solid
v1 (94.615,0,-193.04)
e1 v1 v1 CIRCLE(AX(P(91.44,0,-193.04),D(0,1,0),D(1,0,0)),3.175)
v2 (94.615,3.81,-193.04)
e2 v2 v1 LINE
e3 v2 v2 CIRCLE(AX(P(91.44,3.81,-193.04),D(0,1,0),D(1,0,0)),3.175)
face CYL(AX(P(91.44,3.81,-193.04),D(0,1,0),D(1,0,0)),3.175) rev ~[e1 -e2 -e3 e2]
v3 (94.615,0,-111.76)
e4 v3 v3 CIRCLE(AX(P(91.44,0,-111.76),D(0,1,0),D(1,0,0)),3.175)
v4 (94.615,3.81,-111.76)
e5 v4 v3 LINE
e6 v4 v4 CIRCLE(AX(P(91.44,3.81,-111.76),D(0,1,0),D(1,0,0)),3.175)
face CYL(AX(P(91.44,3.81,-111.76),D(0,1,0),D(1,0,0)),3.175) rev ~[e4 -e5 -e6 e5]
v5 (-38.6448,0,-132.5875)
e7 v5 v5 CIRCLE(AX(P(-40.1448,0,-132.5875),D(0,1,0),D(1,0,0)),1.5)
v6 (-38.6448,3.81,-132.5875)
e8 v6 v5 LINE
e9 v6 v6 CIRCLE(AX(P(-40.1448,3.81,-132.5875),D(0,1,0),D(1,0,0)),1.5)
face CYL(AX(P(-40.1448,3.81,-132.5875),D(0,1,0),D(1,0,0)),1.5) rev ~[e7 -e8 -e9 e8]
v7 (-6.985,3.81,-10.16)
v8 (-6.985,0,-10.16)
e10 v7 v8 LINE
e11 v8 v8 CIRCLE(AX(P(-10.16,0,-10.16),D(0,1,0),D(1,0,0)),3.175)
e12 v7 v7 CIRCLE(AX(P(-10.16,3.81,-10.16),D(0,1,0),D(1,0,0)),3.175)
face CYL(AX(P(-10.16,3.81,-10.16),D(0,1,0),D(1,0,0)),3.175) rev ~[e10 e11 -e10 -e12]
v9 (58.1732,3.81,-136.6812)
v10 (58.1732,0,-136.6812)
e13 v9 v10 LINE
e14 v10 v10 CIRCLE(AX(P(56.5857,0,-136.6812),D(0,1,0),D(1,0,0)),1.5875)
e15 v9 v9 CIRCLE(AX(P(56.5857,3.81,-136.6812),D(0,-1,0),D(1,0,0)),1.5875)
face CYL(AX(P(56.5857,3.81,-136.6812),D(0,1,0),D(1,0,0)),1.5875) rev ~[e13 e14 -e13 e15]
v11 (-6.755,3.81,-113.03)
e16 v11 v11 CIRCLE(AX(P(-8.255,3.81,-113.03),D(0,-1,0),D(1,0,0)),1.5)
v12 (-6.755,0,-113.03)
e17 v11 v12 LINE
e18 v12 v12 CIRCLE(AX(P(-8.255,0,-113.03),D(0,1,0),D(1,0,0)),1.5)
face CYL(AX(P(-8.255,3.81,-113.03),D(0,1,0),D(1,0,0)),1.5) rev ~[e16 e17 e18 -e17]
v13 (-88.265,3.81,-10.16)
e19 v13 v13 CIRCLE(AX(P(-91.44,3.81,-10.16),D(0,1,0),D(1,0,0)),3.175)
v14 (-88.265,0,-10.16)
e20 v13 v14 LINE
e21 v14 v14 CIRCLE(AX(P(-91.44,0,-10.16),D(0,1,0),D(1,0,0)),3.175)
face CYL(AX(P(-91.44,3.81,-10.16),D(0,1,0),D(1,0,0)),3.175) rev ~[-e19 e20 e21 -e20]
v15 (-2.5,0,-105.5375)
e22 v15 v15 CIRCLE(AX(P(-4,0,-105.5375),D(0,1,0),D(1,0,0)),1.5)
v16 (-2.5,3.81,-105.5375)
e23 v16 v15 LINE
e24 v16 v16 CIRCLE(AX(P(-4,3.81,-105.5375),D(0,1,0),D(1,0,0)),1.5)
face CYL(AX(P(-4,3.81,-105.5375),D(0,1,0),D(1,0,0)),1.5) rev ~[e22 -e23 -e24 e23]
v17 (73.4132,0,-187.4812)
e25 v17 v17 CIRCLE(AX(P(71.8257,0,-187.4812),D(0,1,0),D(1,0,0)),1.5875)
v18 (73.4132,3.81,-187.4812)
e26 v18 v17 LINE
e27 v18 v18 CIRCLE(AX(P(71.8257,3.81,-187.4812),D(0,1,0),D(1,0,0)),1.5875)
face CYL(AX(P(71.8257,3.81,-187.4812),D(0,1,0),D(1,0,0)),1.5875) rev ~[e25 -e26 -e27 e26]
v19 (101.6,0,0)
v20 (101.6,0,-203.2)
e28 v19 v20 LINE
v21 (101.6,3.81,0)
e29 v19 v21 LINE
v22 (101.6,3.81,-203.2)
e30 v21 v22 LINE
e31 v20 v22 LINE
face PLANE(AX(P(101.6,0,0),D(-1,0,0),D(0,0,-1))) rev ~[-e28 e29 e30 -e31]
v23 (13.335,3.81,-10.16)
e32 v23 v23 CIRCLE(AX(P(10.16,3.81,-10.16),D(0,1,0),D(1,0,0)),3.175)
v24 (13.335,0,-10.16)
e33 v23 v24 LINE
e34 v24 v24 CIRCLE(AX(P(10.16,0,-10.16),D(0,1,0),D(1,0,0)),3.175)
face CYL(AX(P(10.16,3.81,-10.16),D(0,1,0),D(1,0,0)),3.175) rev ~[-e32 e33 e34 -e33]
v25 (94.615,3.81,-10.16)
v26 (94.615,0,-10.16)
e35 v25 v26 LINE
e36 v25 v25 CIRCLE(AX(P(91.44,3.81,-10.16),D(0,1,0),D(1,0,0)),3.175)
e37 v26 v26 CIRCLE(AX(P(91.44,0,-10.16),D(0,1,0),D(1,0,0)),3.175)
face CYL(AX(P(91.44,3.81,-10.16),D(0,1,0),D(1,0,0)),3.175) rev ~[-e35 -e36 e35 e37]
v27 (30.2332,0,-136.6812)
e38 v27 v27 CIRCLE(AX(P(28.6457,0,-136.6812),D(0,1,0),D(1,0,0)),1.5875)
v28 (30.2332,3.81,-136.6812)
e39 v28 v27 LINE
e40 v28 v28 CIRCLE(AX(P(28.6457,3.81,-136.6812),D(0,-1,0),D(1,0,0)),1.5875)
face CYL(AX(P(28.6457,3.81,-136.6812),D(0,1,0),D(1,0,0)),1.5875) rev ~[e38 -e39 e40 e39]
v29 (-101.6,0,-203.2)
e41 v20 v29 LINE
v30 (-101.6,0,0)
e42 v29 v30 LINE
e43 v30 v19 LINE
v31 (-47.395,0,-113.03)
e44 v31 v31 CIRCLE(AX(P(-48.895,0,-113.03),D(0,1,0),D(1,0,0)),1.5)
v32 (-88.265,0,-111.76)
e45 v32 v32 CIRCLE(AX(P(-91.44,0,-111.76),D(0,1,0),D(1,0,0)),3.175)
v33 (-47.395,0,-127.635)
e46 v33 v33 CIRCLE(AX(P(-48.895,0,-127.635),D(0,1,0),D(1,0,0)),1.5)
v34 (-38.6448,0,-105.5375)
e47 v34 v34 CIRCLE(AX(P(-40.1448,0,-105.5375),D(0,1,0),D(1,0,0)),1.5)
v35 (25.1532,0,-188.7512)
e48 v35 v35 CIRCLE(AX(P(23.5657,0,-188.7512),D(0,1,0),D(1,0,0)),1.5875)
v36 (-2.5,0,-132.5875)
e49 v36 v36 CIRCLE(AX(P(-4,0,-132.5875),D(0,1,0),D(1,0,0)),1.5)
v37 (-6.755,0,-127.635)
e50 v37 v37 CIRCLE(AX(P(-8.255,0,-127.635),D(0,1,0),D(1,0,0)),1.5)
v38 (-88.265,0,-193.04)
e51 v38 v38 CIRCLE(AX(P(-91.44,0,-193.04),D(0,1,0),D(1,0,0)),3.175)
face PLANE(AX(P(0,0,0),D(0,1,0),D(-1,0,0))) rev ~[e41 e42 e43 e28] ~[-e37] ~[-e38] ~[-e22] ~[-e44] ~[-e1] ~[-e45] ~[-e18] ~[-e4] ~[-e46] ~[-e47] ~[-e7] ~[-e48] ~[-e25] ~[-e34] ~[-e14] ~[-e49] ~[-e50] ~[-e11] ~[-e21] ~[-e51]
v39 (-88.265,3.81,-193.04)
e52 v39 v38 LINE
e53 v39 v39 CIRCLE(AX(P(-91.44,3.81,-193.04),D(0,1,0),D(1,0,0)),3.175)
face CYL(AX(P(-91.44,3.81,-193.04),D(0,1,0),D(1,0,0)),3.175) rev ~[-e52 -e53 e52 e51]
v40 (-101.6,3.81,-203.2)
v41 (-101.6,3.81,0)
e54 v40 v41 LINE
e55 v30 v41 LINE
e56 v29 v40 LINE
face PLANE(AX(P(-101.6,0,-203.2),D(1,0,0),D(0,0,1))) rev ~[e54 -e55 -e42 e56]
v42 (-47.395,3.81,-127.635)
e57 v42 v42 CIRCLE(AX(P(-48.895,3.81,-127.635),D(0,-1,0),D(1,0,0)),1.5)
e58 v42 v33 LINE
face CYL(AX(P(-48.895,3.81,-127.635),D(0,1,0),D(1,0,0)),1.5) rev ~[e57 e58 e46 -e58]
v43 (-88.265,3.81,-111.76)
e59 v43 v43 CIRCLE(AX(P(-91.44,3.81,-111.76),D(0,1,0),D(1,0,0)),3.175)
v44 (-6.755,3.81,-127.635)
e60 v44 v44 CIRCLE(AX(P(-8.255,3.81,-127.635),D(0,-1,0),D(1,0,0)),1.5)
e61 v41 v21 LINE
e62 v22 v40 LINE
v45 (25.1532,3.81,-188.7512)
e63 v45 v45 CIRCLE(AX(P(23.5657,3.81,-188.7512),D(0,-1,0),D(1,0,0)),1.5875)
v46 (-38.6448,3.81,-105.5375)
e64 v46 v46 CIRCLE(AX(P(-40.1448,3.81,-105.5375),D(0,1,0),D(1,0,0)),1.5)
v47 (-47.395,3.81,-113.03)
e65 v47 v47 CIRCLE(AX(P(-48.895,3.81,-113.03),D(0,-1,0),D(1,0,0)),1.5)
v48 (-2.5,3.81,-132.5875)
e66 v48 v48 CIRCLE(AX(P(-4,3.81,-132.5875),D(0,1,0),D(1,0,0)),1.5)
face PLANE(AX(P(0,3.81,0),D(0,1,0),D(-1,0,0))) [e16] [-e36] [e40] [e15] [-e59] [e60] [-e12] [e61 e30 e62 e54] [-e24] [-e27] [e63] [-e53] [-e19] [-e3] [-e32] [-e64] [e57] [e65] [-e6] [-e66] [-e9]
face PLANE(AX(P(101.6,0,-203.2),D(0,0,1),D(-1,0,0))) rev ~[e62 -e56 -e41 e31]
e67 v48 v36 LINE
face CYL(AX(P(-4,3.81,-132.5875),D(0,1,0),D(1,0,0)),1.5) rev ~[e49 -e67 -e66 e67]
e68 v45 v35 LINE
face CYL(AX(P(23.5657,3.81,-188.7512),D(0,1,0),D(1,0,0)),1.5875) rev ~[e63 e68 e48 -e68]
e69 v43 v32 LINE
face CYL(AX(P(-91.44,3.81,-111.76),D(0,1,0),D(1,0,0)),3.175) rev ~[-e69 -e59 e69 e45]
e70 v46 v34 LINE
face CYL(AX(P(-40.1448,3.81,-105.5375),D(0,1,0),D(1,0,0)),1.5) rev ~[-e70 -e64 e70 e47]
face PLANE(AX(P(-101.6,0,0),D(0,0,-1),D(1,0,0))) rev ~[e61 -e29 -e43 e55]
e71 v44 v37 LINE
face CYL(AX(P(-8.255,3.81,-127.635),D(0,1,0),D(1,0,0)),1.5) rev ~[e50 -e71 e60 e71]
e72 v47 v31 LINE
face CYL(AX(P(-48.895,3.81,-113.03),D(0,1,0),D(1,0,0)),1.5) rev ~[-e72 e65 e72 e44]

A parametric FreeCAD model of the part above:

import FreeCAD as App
import Part
import Sketcher
Q = App.Units.Quantity


def add_polygon(sketch, points):
    """Adds a closed chain of lines whose ends are joined by coincident constraints."""
    first, n = sketch.GeometryCount, len(points)
    for a, b in zip(points, points[1:] + points[:1]):
        sketch.addGeometry(Part.LineSegment(App.Vector(*a, 0), App.Vector(*b, 0)), False)
    for i in range(n):
        sketch.addConstraint(Sketcher.Constraint("Coincident", first + i, 2, first + (i + 1) % n, 1))

doc = App.newDocument("Part")
body = doc.addObject("PartDesign::Body", "Body")

sketch1 = body.newObject("Sketcher::SketchObject", "Sketch")
sketch1.AttachmentSupport = (doc.getObject("XZ_Plane"), [""])
sketch1.MapMode = "FlatFace"
add_polygon(sketch1, [(-102, -203), (-102, 0), (102, 0), (102, -203)])
sketch1.addConstraint([
    Sketcher.Constraint("Vertical", 0),
    Sketcher.Constraint("Horizontal", 1),
    Sketcher.Constraint("Vertical", 2),
    Sketcher.Constraint("Horizontal", 3),
    Sketcher.Constraint("Symmetric", 0, 2, 1, 2, -1, 1),
    Sketcher.Constraint("Equal", 3, 0),
    Sketcher.Constraint("DistanceX", 1, 1, 1, 2, Q("8 in")),
])
pad1 = body.newObject("PartDesign::Pad", "Pad")
pad1.Profile = sketch1
pad1.Length = Q("0.15 in")
pad1.Reversed = True

sketch2 = body.newObject("Sketcher::SketchObject", "Sketch001")
sketch2.AttachmentSupport = (doc.getObject("XZ_Plane"), [""])
sketch2.MapMode = "FlatFace"
sketch2.AttachmentOffset = App.Placement(App.Vector(0, 0, -0.15 * 25.4), App.Rotation())
sketch2.addGeometry([
    Part.Circle(App.Vector(-91.4, -10.2, 0), App.Vector(0, 0, 1), 3.2),
    Part.Circle(App.Vector(91.4, -10.2, 0), App.Vector(0, 0, 1), 3.2),
    Part.Circle(App.Vector(-91.4, -193, 0), App.Vector(0, 0, 1), 3.2),
    Part.Circle(App.Vector(91.4, -193, 0), App.Vector(0, 0, 1), 3.2),
], False)
sketch2.addConstraint([
    Sketcher.Constraint("Equal", 0, 1),
    Sketcher.Constraint("Equal", 1, 2),
    Sketcher.Constraint("Equal", 2, 3),
    Sketcher.Constraint("Symmetric", 0, 3, 1, 3, -2),
    Sketcher.Constraint("Symmetric", 2, 3, 3, 3, -2),
    Sketcher.Constraint("Vertical", 0, 3, 2, 3),
    Sketcher.Constraint("Diameter", 0, Q("0.25 in")),
    Sketcher.Constraint("DistanceX", 0, 3, -1, 1, Q("3.6 in")),
    Sketcher.Constraint("DistanceY", 0, 3, -1, 1, Q("0.4 in")),
    Sketcher.Constraint("DistanceY", 2, 3, -1, 1, Q("7.6 in")),
])
pocket1 = body.newObject("PartDesign::Pocket", "Pocket")
pocket1.Profile = sketch2
pocket1.Length = Q("0.15 in")
pocket1.Reversed = True

sketch3 = body.newObject("Sketcher::SketchObject", "Sketch002")
sketch3.AttachmentSupport = (doc.getObject("XZ_Plane"), [""])
sketch3.MapMode = "FlatFace"
sketch3.AttachmentOffset = App.Placement(App.Vector(0, 0, -0.15 * 25.4), App.Rotation())
sketch3.addGeometry([
    Part.Circle(App.Vector(-91.4, -111.8, 0), App.Vector(0, 0, 1), 3.2),
    Part.Circle(App.Vector(91.4, -111.8, 0), App.Vector(0, 0, 1), 3.2),
], False)
sketch3.addConstraint([
    Sketcher.Constraint("Equal", 0, 1),
    Sketcher.Constraint("Symmetric", 0, 3, 1, 3, -2),
    Sketcher.Constraint("Diameter", 0, Q("0.25 in")),
    Sketcher.Constraint("DistanceX", 0, 3, -1, 1, Q("3.6 in")),
    Sketcher.Constraint("DistanceY", 0, 3, -1, 1, Q("4.4 in")),
])
pocket2 = body.newObject("PartDesign::Pocket", "Pocket001")
pocket2.Profile = sketch3
pocket2.Length = Q("0.15 in")
pocket2.Reversed = True

sketch4 = body.newObject("Sketcher::SketchObject", "Sketch003")
sketch4.AttachmentSupport = (doc.getObject("XZ_Plane"), [""])
sketch4.MapMode = "FlatFace"
sketch4.AttachmentOffset = App.Placement(App.Vector(0, 0, -0.15 * 25.4), App.Rotation())
sketch4.addGeometry([
    Part.Circle(App.Vector(-48.9, -113, 0), App.Vector(0, 0, 1), 1.5),
    Part.Circle(App.Vector(-8.3, -113, 0), App.Vector(0, 0, 1), 1.5),
    Part.Circle(App.Vector(-8.3, -127.6, 0), App.Vector(0, 0, 1), 1.5),
    Part.Circle(App.Vector(-48.9, -127.6, 0), App.Vector(0, 0, 1), 1.5),
], False)
sketch4.addConstraint([
    Sketcher.Constraint("Equal", 0, 1),
    Sketcher.Constraint("Equal", 1, 2),
    Sketcher.Constraint("Equal", 2, 3),
    Sketcher.Constraint("Horizontal", 0, 3, 1, 3),
    Sketcher.Constraint("Horizontal", 2, 3, 3, 3),
    Sketcher.Constraint("Vertical", 1, 3, 2, 3),
    Sketcher.Constraint("Vertical", 0, 3, 3, 3),
    Sketcher.Constraint("Diameter", 0, Q("0.1181 in")),
    Sketcher.Constraint("DistanceX", 0, 3, 1, 3, Q("1.6 in")),
    Sketcher.Constraint("DistanceY", 0, 3, -1, 1, Q("4.45 in")),
    Sketcher.Constraint("DistanceX", 0, 3, -1, 1, Q("1.925 in")),
    Sketcher.Constraint("DistanceY", 2, 3, -1, 1, Q("5.025 in")),
])
pocket3 = body.newObject("PartDesign::Pocket", "Pocket002")
pocket3.Profile = sketch4
pocket3.Length = Q("0.15 in")
pocket3.Reversed = True

sketch5 = body.newObject("Sketcher::SketchObject", "Sketch004")
sketch5.AttachmentSupport = (doc.getObject("XZ_Plane"), [""])
sketch5.MapMode = "FlatFace"
sketch5.AttachmentOffset = App.Placement(App.Vector(0, 0, -0.15 * 25.4), App.Rotation())
sketch5.addGeometry([
    Part.Circle(App.Vector(10.2, -10.2, 0), App.Vector(0, 0, 1), 3.2),
    Part.Circle(App.Vector(-10.2, -10.2, 0), App.Vector(0, 0, 1), 3.2),
], False)
sketch5.addConstraint([
    Sketcher.Constraint("Equal", 0, 1),
    Sketcher.Constraint("Symmetric", 0, 3, 1, 3, -2),
    Sketcher.Constraint("Diameter", 0, Q("0.25 in")),
    Sketcher.Constraint("DistanceX", 1, 3, 0, 3, Q("0.8 in")),
    Sketcher.Constraint("DistanceY", 0, 3, -1, 1, Q("0.4 in")),
])
pocket4 = body.newObject("PartDesign::Pocket", "Pocket003")
pocket4.Profile = sketch5
pocket4.Length = Q("0.15 in")
pocket4.Reversed = True

sketch6 = body.newObject("Sketcher::SketchObject", "Sketch005")
sketch6.AttachmentSupport = (doc.getObject("XZ_Plane"), [""])
sketch6.MapMode = "FlatFace"
sketch6.AttachmentOffset = App.Placement(App.Vector(0, 0, -0.15 * 25.4), App.Rotation())
sketch6.addGeometry([
    Part.Circle(App.Vector(-40.1, -132.6, 0), App.Vector(0, 0, 1), 1.5),
    Part.Circle(App.Vector(-40.1, -105.5, 0), App.Vector(0, 0, 1), 1.5),
    Part.Circle(App.Vector(-4, -105.5, 0), App.Vector(0, 0, 1), 1.5),
    Part.Circle(App.Vector(-4, -132.6, 0), App.Vector(0, 0, 1), 1.5),
], False)
sketch6.addConstraint([
    Sketcher.Constraint("Equal", 0, 1),
    Sketcher.Constraint("Equal", 1, 2),
    Sketcher.Constraint("Equal", 2, 3),
    Sketcher.Constraint("Horizontal", 1, 3, 2, 3),
    Sketcher.Constraint("Horizontal", 0, 3, 3, 3),
    Sketcher.Constraint("Vertical", 0, 3, 1, 3),
    Sketcher.Constraint("Vertical", 2, 3, 3, 3),
    Sketcher.Constraint("Diameter", 0, Q("0.1181 in")),
    Sketcher.Constraint("DistanceX", 0, 3, -1, 1, Q("1.5805 in")),
    Sketcher.Constraint("DistanceY", 0, 3, -1, 1, 132.5875),
    Sketcher.Constraint("DistanceY", 1, 3, -1, 1, 105.5375),
    Sketcher.Constraint("DistanceX", 2, 3, -1, 1, 4.0),
])
pocket5 = body.newObject("PartDesign::Pocket", "Pocket004")
pocket5.Profile = sketch6
pocket5.Length = Q("0.15 in")
pocket5.Reversed = True

sketch7 = body.newObject("Sketcher::SketchObject", "Sketch006")
sketch7.AttachmentSupport = (doc.getObject("XZ_Plane"), [""])
sketch7.MapMode = "FlatFace"
sketch7.AttachmentOffset = App.Placement(App.Vector(0, 0, -0.15 * 25.4), App.Rotation())
sketch7.addGeometry([
    Part.Circle(App.Vector(28.6, -136.7, 0), App.Vector(0, 0, 1), 1.6),
    Part.Circle(App.Vector(56.6, -136.7, 0), App.Vector(0, 0, 1), 1.6),
    Part.Circle(App.Vector(71.8, -187.5, 0), App.Vector(0, 0, 1), 1.6),
    Part.Circle(App.Vector(23.6, -188.8, 0), App.Vector(0, 0, 1), 1.6),
], False)
sketch7.addConstraint([
    Sketcher.Constraint("Equal", 0, 1),
    Sketcher.Constraint("Equal", 1, 2),
    Sketcher.Constraint("Equal", 2, 3),
    Sketcher.Constraint("Horizontal", 0, 3, 1, 3),
    Sketcher.Constraint("Diameter", 0, Q("0.125 in")),
    Sketcher.Constraint("DistanceY", 2, 3, 1, 3, Q("2 in")),
    Sketcher.Constraint("DistanceX", 0, 3, 1, 3, Q("1.1 in")),
    Sketcher.Constraint("DistanceX", 1, 3, 2, 3, Q("0.6 in")),
    Sketcher.Constraint("DistanceX", 3, 3, 2, 3, Q("1.9 in")),
    Sketcher.Constraint("DistanceY", 3, 3, 2, 3, Q("0.05 in")),
    Sketcher.Constraint("DistanceX", -1, 1, 0, 3, 28.6457),
    Sketcher.Constraint("DistanceY", 0, 3, -1, 1, 136.6812),
])
pocket6 = body.newObject("PartDesign::Pocket", "Pocket005")
pocket6.Profile = sketch7
pocket6.Length = Q("0.15 in")
pocket6.Reversed = True

doc.recompute()
